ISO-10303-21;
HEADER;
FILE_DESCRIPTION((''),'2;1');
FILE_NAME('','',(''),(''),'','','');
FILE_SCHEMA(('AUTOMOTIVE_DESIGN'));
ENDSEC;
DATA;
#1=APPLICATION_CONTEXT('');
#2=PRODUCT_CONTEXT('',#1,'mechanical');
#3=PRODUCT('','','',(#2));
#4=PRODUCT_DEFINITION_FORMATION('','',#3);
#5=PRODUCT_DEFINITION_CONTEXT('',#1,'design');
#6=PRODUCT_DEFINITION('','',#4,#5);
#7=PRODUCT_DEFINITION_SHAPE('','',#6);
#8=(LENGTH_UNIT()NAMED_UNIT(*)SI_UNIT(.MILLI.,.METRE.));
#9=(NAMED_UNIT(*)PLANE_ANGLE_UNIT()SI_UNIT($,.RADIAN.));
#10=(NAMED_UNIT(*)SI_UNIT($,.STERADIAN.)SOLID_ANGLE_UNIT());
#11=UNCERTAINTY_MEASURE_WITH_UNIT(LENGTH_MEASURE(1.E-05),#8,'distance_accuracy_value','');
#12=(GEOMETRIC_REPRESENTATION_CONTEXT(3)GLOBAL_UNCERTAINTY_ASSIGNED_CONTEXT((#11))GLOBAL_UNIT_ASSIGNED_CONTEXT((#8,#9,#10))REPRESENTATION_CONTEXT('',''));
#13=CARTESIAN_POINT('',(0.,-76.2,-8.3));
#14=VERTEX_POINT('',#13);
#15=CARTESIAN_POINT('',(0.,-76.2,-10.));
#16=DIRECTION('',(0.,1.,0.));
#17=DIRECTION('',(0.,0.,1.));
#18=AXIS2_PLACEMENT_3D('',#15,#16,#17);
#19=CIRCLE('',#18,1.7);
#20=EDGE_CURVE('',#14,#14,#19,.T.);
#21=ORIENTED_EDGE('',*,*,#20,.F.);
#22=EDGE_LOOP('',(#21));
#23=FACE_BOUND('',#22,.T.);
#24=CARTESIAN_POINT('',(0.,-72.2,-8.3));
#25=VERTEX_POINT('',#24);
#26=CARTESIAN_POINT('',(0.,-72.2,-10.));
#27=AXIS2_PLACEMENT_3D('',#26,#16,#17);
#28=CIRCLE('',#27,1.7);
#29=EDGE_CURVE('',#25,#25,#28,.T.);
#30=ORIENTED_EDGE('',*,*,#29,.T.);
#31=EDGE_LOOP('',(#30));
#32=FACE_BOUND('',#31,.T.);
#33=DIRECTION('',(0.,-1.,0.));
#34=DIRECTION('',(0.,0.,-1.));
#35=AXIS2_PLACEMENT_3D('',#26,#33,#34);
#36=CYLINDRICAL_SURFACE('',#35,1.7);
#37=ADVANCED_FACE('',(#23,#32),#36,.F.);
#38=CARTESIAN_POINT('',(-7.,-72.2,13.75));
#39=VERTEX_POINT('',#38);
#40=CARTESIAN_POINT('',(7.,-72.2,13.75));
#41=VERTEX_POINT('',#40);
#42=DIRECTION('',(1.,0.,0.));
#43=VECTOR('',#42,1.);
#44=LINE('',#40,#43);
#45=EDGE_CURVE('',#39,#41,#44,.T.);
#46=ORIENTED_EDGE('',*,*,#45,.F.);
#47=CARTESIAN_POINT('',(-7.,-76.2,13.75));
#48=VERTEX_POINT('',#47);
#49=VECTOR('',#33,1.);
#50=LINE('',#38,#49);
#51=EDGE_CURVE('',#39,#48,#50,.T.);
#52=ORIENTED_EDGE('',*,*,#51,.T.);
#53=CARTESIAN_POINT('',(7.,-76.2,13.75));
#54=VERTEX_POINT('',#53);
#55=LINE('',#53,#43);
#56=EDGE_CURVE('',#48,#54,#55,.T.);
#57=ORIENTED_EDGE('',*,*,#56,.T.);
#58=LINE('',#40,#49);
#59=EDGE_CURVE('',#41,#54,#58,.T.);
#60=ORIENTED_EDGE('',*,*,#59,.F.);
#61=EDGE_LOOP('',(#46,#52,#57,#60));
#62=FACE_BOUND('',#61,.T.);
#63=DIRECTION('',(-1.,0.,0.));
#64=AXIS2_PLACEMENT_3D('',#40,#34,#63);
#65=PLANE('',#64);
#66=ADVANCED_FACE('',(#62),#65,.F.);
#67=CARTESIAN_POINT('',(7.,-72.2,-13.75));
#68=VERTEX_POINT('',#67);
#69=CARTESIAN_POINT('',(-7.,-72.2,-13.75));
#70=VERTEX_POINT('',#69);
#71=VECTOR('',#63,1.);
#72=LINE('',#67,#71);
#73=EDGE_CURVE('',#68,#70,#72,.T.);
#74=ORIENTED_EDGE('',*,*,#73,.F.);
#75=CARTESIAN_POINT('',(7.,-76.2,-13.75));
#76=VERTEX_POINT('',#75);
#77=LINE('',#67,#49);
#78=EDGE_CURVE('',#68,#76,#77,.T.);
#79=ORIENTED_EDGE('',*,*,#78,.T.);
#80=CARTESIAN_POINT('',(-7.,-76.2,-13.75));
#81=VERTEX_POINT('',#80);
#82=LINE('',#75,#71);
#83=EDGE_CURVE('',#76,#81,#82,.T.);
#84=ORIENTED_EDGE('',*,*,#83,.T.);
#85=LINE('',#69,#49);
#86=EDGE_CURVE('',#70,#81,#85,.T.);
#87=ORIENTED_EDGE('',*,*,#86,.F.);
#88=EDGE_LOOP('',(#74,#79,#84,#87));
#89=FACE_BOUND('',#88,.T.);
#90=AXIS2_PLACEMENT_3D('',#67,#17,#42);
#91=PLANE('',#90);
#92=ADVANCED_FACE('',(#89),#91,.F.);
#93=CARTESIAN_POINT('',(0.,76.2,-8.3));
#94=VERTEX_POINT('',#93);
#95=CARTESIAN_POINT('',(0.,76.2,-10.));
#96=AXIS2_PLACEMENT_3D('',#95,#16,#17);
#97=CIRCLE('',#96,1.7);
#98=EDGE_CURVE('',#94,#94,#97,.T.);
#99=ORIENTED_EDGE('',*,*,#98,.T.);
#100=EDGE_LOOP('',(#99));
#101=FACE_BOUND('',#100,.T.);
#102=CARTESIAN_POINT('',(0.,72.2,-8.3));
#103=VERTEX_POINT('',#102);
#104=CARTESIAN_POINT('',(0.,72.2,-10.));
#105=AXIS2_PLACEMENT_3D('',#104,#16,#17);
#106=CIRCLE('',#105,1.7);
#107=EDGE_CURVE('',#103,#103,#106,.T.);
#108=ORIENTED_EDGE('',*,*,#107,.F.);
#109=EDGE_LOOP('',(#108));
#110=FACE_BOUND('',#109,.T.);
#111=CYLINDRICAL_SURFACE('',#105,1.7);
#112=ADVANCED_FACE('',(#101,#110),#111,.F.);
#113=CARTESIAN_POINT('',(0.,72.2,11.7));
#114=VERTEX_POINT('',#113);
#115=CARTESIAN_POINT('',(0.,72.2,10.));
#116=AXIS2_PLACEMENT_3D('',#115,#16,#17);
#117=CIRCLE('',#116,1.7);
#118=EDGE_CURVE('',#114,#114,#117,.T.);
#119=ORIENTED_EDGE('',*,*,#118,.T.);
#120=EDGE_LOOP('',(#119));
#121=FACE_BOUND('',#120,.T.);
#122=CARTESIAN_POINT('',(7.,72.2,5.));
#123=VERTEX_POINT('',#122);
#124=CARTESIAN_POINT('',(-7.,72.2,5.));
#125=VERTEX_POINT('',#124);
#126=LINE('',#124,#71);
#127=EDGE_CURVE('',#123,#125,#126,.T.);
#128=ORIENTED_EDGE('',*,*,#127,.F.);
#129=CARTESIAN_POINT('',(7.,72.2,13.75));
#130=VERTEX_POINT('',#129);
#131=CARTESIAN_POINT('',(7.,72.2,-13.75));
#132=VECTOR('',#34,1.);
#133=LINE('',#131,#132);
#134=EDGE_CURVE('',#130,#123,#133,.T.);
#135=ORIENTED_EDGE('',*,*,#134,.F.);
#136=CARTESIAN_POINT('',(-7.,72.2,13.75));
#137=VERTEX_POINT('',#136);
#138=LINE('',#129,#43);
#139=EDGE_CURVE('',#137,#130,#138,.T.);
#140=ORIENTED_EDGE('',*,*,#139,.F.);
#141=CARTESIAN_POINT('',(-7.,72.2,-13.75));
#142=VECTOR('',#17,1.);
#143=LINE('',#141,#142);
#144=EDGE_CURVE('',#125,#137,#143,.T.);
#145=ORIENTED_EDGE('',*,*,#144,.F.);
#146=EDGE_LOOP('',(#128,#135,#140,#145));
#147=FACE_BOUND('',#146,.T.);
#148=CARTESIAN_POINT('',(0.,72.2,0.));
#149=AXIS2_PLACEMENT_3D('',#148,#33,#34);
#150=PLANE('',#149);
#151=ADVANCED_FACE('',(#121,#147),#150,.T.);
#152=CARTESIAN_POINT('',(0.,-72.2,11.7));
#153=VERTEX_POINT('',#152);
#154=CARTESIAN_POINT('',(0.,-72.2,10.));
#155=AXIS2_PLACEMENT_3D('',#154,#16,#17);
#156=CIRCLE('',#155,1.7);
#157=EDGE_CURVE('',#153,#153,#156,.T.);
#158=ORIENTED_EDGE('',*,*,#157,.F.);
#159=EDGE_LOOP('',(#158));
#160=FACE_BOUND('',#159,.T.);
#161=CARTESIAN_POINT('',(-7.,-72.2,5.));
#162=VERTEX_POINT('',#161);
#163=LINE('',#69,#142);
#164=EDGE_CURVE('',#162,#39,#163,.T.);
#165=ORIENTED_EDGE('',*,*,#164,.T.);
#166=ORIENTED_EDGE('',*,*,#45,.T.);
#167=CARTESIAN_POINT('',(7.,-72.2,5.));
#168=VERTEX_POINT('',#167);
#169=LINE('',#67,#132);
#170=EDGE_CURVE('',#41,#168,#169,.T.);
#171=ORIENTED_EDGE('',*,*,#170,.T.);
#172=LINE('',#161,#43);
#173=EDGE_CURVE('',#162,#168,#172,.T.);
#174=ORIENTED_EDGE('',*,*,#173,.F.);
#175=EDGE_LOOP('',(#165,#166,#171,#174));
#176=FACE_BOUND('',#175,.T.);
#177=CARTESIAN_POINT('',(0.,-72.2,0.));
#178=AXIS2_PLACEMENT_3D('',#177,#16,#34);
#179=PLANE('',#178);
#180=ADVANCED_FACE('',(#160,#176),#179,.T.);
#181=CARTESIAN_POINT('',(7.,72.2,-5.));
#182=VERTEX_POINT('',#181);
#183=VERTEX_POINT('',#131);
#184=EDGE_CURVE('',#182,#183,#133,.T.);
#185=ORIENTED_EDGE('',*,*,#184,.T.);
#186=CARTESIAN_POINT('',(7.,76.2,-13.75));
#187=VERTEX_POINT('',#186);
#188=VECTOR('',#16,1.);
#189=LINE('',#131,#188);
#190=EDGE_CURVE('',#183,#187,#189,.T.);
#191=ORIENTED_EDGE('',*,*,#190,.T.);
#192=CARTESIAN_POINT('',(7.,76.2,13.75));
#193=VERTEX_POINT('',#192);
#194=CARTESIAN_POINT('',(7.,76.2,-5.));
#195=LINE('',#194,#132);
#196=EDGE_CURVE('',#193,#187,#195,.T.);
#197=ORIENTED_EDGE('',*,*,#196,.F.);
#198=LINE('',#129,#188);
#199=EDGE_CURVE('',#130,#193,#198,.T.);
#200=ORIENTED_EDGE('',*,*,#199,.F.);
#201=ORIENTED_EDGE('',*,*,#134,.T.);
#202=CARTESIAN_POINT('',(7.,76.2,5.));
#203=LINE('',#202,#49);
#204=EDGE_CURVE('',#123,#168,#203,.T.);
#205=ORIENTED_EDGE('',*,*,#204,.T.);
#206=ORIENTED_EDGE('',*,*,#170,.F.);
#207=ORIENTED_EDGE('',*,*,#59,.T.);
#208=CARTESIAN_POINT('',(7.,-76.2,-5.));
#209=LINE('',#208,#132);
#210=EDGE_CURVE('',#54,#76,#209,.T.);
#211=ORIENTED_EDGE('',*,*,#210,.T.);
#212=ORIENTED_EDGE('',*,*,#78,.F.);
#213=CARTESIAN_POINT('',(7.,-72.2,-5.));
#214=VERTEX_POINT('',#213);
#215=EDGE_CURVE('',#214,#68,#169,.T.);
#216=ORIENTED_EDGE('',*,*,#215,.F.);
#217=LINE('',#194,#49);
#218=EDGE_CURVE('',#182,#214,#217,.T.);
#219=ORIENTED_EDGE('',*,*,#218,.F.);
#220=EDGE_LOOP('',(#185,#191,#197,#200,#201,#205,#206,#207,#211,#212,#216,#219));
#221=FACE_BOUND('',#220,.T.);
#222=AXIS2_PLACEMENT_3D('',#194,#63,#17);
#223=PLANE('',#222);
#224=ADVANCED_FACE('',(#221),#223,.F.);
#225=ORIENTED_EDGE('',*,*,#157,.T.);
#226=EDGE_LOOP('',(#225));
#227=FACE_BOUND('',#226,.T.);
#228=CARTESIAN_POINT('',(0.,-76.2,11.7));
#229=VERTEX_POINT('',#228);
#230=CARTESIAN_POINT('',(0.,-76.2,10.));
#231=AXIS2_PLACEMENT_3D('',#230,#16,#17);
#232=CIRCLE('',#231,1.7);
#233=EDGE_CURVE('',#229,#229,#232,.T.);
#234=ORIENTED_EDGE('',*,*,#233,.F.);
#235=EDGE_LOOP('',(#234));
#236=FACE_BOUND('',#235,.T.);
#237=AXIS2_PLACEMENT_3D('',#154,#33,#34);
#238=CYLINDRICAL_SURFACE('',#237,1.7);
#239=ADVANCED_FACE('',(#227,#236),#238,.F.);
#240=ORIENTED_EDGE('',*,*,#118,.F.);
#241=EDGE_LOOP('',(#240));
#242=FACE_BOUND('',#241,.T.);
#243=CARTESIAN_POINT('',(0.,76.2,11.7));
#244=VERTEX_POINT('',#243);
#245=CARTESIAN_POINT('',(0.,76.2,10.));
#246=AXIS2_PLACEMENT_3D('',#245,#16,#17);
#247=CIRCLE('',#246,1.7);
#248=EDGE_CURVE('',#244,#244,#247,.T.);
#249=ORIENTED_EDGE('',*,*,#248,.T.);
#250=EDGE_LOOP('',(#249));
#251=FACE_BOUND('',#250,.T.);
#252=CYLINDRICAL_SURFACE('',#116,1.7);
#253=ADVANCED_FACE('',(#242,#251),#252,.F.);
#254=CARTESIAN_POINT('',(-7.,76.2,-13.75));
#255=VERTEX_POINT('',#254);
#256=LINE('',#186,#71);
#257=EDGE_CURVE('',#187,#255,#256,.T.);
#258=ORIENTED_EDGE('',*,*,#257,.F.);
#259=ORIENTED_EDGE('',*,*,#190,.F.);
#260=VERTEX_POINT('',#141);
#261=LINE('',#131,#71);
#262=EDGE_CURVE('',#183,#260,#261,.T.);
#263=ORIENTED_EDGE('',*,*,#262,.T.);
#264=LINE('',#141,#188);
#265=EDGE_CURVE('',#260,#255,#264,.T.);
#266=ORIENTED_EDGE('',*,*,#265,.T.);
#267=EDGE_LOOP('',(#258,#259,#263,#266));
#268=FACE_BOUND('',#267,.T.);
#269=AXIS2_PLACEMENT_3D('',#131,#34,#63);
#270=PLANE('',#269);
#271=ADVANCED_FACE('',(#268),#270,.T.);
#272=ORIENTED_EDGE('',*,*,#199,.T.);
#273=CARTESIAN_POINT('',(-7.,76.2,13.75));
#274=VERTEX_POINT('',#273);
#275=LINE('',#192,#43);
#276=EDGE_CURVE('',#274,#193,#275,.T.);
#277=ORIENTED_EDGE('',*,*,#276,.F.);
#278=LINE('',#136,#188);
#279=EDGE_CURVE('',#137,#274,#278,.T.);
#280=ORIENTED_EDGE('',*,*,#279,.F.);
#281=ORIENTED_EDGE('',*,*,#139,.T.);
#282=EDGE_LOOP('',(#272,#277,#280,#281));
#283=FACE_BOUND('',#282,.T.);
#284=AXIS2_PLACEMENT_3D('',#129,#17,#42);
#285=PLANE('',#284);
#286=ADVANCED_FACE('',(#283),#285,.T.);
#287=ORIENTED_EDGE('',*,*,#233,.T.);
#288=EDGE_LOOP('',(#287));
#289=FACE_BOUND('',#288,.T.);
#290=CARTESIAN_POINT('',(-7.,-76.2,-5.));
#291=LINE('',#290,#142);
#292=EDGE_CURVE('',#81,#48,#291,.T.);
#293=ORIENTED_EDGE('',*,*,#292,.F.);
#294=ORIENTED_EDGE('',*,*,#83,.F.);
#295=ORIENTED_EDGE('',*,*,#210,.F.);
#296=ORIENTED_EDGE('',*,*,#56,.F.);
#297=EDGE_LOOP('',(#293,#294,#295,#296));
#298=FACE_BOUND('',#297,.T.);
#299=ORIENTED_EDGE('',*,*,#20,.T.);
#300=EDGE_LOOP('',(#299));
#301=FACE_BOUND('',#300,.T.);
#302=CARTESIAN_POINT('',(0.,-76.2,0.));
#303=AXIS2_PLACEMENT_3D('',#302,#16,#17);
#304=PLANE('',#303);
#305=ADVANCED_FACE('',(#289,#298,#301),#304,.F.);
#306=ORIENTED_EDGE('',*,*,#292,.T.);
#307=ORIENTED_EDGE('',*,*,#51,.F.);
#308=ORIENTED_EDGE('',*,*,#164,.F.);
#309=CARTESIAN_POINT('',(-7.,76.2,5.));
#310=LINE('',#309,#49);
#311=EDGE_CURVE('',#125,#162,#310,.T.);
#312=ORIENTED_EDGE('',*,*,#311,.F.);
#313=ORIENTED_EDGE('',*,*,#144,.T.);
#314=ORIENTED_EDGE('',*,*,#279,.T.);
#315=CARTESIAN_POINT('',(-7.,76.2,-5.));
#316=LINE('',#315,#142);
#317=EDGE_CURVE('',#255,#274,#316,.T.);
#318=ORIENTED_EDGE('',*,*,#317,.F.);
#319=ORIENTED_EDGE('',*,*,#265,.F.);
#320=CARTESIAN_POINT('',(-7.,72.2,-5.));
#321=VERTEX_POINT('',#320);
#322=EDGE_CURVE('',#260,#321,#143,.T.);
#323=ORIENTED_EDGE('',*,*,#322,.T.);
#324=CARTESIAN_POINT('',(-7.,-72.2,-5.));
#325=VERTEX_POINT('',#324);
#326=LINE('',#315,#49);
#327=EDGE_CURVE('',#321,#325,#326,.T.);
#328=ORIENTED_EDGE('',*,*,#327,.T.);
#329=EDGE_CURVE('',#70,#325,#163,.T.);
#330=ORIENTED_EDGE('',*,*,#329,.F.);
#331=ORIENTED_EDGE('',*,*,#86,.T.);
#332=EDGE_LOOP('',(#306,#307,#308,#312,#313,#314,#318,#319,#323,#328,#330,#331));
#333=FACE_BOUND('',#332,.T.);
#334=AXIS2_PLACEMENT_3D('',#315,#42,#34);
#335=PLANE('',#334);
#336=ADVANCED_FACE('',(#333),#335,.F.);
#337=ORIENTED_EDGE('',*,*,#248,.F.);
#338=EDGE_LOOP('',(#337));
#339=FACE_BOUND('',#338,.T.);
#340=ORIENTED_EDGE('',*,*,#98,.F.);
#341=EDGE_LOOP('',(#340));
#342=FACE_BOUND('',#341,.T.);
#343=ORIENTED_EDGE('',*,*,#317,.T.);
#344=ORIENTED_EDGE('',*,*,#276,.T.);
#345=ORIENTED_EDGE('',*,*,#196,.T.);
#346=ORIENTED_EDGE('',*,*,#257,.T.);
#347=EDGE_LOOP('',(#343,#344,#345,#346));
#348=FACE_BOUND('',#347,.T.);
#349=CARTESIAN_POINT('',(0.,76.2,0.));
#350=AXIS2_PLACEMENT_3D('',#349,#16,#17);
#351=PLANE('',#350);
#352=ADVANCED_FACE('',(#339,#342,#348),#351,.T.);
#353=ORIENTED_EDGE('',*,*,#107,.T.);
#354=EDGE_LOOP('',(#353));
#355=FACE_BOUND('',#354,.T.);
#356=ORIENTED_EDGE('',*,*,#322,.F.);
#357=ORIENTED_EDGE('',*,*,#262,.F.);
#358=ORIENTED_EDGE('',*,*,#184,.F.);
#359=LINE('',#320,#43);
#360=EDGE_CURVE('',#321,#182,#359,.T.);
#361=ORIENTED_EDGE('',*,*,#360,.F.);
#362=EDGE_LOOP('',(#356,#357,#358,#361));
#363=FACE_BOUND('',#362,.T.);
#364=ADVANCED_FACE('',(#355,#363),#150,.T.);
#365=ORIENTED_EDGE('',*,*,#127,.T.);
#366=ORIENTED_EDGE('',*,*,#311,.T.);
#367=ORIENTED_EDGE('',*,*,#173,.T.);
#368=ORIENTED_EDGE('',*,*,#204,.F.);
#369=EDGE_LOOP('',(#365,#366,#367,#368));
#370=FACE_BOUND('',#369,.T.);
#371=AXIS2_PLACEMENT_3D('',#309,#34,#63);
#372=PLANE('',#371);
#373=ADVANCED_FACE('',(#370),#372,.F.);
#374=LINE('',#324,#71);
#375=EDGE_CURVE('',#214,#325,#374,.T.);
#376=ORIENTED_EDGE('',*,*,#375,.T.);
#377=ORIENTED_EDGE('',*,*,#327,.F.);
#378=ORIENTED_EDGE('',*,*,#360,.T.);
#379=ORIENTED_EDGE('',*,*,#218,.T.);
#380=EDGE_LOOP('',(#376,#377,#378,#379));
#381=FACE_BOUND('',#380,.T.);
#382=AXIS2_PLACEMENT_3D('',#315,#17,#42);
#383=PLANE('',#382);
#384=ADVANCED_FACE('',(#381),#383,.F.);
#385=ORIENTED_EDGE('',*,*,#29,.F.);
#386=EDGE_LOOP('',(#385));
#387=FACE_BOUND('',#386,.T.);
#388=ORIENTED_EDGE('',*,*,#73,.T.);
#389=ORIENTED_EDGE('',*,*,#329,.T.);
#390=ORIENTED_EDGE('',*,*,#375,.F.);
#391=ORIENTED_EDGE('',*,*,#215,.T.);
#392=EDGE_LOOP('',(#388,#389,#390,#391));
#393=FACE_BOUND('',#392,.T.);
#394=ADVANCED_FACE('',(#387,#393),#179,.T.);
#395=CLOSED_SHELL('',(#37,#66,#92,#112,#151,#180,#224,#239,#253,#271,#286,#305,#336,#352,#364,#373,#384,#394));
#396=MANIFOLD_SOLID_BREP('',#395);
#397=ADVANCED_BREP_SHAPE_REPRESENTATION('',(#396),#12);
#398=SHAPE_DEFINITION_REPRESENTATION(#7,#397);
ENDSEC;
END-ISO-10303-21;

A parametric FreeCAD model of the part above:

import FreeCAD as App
import Part
import Sketcher
from FreeCAD import Vector


def add_polygon(sketch, points):
    """Adds a closed chain of lines whose ends are joined by coincident constraints."""
    first, n = sketch.GeometryCount, len(points)
    for a, b in zip(points, points[1:] + points[:1]):
        sketch.addGeometry(Part.LineSegment(App.Vector(*a, 0), App.Vector(*b, 0)), False)
    for i in range(n):
        sketch.addConstraint(Sketcher.Constraint("Coincident", first + i, 2, first + (i + 1) % n, 1))

doc = App.newDocument("Part")
body = doc.addObject("PartDesign::Body", "Body")

sketch1 = body.newObject("Sketcher::SketchObject", "Sketch")
sketch1.AttachmentSupport = (doc.getObject("XZ_Plane"), [""])
sketch1.MapMode = "FlatFace"
add_polygon(sketch1, [(-7, -5), (-7, 5), (7, 5), (7, -5)])
sketch1.addConstraint([
    Sketcher.Constraint("Vertical", 0),
    Sketcher.Constraint("Horizontal", 1),
    Sketcher.Constraint("Vertical", 2),
    Sketcher.Constraint("Horizontal", 3),
    Sketcher.Constraint("Symmetric", 0, 2, 2, 2, -1, 1),
    Sketcher.Constraint("DistanceX", 1, 1, 1, 2, 14.0),
    Sketcher.Constraint("DistanceY", 0, 1, 0, 2, 10.0),
])
pad1 = body.newObject("PartDesign::Pad", "Pad")
pad1.Profile = sketch1
pad1.Length = 152.4
pad1.Midplane = True

sketch2 = body.newObject("Sketcher::SketchObject", "Sketch001")
sketch2.AttachmentSupport = (doc.getObject("XZ_Plane"), [""])
sketch2.MapMode = "FlatFace"
sketch2.AttachmentOffset = App.Placement(Vector(0, 0, -76.2), App.Rotation())
add_polygon(sketch2, [(-7, -13.75), (-7, 13.75), (7, 13.75), (7, -13.75)])
sketch2.addGeometry(Part.Circle(Vector(0, 10, 0), Vector(0, 0, 1), 1.7), False)
sketch2.addGeometry(Part.Circle(Vector(0, -10, 0), Vector(0, 0, 1), 1.7), False)
sketch2.addConstraint([
    Sketcher.Constraint("Vertical", 0),
    Sketcher.Constraint("Horizontal", 1),
    Sketcher.Constraint("Vertical", 2),
    Sketcher.Constraint("Horizontal", 3),
    Sketcher.Constraint("Equal", 4, 5),
    Sketcher.Constraint("Symmetric", 4, 3, 5, 3, -1, 1),
    Sketcher.Constraint("Symmetric", 0, 2, 2, 2, -1, 1),
    Sketcher.Constraint("PointOnObject", 4, 3, -2),
    Sketcher.Constraint("Diameter", 4, 3.4),
    Sketcher.Constraint("DistanceX", 1, 1, 1, 2, 14.0),
    Sketcher.Constraint("DistanceY", 0, 1, 0, 2, 27.5),
    Sketcher.Constraint("DistanceY", -1, 1, 4, 3, 10.0),
])
pad2 = body.newObject("PartDesign::Pad", "Pad001")
pad2.Profile = sketch2
pad2.Length = 4
doc.recompute()

mirrored = body.newObject("PartDesign::Mirrored", "Mirrored")
mirrored.Originals = [pad2]
mirrored.MirrorPlane = (doc.getObject("XZ_Plane"), [""])
body.Tip = mirrored

doc.recompute()
